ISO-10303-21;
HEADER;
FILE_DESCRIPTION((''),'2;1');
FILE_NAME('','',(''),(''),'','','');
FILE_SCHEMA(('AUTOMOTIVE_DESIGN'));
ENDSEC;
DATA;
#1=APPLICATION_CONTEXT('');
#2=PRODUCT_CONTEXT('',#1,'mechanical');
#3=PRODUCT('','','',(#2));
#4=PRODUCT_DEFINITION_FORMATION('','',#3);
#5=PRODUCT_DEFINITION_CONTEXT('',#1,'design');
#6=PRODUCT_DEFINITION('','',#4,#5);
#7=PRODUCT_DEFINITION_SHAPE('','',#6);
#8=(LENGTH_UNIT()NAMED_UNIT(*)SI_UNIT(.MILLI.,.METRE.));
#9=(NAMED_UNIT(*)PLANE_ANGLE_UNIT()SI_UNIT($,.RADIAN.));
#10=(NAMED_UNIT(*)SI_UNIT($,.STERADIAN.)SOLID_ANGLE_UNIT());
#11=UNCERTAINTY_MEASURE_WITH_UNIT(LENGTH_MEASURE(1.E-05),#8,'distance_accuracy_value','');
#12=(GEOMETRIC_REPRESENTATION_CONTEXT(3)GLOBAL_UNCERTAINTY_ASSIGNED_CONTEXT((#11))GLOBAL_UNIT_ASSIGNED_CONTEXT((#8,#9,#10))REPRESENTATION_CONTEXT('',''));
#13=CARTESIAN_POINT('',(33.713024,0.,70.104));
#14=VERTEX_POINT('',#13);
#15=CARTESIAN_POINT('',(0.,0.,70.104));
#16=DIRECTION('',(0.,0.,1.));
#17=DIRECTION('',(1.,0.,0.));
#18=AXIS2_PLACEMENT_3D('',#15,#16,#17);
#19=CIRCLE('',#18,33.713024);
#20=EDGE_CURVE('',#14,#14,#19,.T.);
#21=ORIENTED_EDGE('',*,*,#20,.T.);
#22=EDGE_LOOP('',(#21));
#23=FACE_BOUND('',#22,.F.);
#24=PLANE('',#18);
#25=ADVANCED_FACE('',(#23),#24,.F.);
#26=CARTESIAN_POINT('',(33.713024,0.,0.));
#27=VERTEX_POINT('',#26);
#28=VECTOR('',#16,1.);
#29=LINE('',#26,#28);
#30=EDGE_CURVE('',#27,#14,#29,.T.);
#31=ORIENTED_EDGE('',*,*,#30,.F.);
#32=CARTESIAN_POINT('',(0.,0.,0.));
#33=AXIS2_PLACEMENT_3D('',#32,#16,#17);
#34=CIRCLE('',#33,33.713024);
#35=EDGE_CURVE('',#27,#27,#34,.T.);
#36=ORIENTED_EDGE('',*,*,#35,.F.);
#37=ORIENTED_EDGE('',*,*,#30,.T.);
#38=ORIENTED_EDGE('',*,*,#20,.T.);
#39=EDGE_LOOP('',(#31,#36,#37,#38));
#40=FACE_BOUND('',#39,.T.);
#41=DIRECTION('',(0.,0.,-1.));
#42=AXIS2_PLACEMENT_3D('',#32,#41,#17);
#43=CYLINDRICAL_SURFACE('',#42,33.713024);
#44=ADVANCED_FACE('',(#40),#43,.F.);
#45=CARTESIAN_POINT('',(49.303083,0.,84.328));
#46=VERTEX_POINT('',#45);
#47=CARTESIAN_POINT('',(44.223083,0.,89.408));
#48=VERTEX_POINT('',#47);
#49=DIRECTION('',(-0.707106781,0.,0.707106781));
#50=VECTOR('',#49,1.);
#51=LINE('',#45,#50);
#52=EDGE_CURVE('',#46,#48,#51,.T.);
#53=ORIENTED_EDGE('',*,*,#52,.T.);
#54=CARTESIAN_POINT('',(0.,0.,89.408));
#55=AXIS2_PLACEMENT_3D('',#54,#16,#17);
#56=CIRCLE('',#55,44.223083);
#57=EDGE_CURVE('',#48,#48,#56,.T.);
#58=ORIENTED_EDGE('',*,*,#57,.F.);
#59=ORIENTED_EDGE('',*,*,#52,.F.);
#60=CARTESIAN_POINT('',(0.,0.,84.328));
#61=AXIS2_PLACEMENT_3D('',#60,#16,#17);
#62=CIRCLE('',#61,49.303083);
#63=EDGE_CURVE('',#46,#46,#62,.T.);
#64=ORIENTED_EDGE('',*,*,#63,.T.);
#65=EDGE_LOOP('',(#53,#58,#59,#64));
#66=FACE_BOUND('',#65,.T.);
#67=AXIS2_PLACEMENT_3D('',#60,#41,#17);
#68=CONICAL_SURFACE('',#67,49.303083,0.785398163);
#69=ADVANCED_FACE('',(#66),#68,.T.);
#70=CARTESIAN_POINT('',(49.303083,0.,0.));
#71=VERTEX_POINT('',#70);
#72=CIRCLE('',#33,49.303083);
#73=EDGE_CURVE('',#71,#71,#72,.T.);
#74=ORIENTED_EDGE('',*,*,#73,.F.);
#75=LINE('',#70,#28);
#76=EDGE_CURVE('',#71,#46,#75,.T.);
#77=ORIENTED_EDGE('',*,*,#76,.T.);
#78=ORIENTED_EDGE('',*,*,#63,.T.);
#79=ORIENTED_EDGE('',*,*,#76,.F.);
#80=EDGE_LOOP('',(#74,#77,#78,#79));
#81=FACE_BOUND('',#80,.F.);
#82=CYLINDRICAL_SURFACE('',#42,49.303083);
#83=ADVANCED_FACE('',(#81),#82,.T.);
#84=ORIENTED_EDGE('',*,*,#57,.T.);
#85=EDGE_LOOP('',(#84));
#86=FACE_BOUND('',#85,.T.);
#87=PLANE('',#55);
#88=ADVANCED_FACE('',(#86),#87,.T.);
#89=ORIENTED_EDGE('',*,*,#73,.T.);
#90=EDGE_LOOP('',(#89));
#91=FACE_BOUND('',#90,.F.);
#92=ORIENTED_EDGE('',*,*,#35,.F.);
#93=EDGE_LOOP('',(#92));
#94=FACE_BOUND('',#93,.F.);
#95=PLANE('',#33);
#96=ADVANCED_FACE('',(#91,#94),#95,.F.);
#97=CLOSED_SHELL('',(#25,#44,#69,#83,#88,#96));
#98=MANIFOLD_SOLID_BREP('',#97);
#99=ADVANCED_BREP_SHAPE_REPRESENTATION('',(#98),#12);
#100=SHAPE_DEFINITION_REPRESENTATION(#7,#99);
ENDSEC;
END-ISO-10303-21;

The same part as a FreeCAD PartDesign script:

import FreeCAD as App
import Part
import Sketcher
from FreeCAD import Vector
Q = App.Units.Quantity


def edges_at(feature, points):
    """Names of the edges that pass closest to the given points."""
    edges = feature.Shape.Edges
    near = lambda p: min(range(len(edges)), key=lambda i: edges[i].distToShape(Part.Vertex(*p))[0])
    return sorted({f"Edge{near(p) + 1}" for p in points})

doc = App.newDocument("Part")
body = doc.addObject("PartDesign::Body", "Body")

# Sketch on XY plane
sketch1 = doc.addObject("Sketcher::SketchObject", "Sketch")
body.addObject(sketch1)
sketch1.AttachmentSupport = (doc.XY_Plane, [""])
sketch1.MapMode = "FlatFace"
sketch1.addGeometry(Part.Circle(Vector(0, 0, 0), Vector(0, 0, 1), 49.303083), False)
sketch1.addConstraint([
    Sketcher.Constraint("Coincident", 0, 3, -1, 1),
    Sketcher.Constraint("Diameter", 0, Q("98.606166 mm")),
])
pad1 = doc.addObject("PartDesign::Pad", "Pad")
body.addObject(pad1)
pad1.Profile = sketch1
pad1.Length = Q("3.52 in")
doc.recompute()

chamfer = doc.addObject("PartDesign::Chamfer", "Chamfer")
body.addObject(chamfer)
chamfer.Base = (pad1, edges_at(pad1, [(-49.303, 0, 89.408)]))
chamfer.Size = Q("0.2 in")

# Sketch on XY plane
sketch2 = doc.addObject("Sketcher::SketchObject", "Sketch001")
body.addObject(sketch2)
sketch2.AttachmentSupport = (doc.XY_Plane, [""])
sketch2.MapMode = "FlatFace"
sketch2.addGeometry(Part.Circle(Vector(0, 0, 0), Vector(0, 0, 1), 33.713024), False)
sketch2.addConstraint([
    Sketcher.Constraint("Coincident", 0, 3, -1, 1),
    Sketcher.Constraint("Diameter", 0, Q("67.426048 mm")),
])
pocket1 = doc.addObject("PartDesign::Pocket", "Pocket")
body.addObject(pocket1)
pocket1.Profile = sketch2
pocket1.Length = Q("2.76 in")
pocket1.Reversed = True

doc.recompute()
